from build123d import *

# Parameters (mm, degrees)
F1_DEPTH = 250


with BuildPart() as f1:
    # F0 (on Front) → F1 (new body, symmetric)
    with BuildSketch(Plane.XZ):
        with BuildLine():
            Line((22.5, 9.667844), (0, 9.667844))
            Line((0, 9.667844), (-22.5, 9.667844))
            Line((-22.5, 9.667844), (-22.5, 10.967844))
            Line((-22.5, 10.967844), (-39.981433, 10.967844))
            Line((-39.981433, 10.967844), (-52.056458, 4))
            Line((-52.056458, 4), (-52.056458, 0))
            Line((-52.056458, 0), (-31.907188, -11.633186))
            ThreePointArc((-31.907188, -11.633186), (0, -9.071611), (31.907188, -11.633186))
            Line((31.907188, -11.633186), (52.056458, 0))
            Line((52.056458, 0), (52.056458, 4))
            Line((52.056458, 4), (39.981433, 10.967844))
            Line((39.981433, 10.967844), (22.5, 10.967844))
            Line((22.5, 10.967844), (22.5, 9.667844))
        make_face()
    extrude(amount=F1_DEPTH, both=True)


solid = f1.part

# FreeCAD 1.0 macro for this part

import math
import FreeCAD as App
import Part
import Sketcher

V = App.Vector
Q = App.Units.Quantity

doc = App.newDocument("Part")
body = doc.addObject("PartDesign::Body", "Body")

sketch1 = body.newObject("Sketcher::SketchObject", "Sketch")
sketch1.AttachmentSupport = (doc.getObject("XZ_Plane"), [""])
sketch1.MapMode = "FlatFace"
sketch1.addGeometry([
    Part.LineSegment(V(22.5, 9.667844, 0), V(-22.5, 9.667844, 0)),
    Part.LineSegment(V(-22.5, 9.667844, 0), V(-22.5, 10.967844, 0)),
    Part.LineSegment(V(-22.5, 10.967844, 0), V(-39.981433, 10.967844, 0)),
    Part.LineSegment(V(-39.981433, 10.967844, 0), V(-52.056458, 4, 0)),
    Part.LineSegment(V(-52.056458, 4, 0), V(-52.056458, 0, 0)),
    Part.LineSegment(V(-52.056458, 0, 0), V(-31.907188, -11.633186, 0)),
    Part.ArcOfCircle(Part.Circle(V(0, -209.071672, 0), V(0, 0, 1), 200.000061), math.radians(80.820041), math.radians(99.179959)),
    Part.LineSegment(V(31.907188, -11.633186, 0), V(52.056458, 0, 0)),
    Part.LineSegment(V(52.056458, 0, 0), V(52.056458, 4, 0)),
    Part.LineSegment(V(52.056458, 4, 0), V(39.981433, 10.967844, 0)),
    Part.LineSegment(V(39.981433, 10.967844, 0), V(22.5, 10.967844, 0)),
    Part.LineSegment(V(22.5, 10.967844, 0), V(22.5, 9.667844, 0)),
], False)
sketch1.addConstraint([
    Sketcher.Constraint("Coincident", 0, 2, 1, 1),
    Sketcher.Constraint("Coincident", 1, 2, 2, 1),
    Sketcher.Constraint("Coincident", 2, 2, 3, 1),
    Sketcher.Constraint("Coincident", 3, 2, 4, 1),
    Sketcher.Constraint("Coincident", 4, 2, 5, 1),
    Sketcher.Constraint("Coincident", 5, 2, 6, 2),
    Sketcher.Constraint("Coincident", 6, 1, 7, 1),
    Sketcher.Constraint("Coincident", 7, 2, 8, 1),
    Sketcher.Constraint("Coincident", 8, 2, 9, 1),
    Sketcher.Constraint("Coincident", 9, 2, 10, 1),
    Sketcher.Constraint("Coincident", 10, 2, 11, 1),
    Sketcher.Constraint("Coincident", 11, 2, 0, 1),
    Sketcher.Constraint("Horizontal", 0),
    Sketcher.Constraint("Vertical", 1),
    Sketcher.Constraint("Horizontal", 2),
    Sketcher.Constraint("Vertical", 4),
    Sketcher.Constraint("Vertical", 8),
    Sketcher.Constraint("Horizontal", 10),
    Sketcher.Constraint("Vertical", 11),
    Sketcher.Constraint("Symmetric", 4, 2, 7, 2, -1, 1),
    Sketcher.Constraint("Symmetric", 5, 2, 6, 1, -2),
    Sketcher.Constraint("Symmetric", 2, 2, 9, 2, -2),
    Sketcher.Constraint("PointOnObject", 4, 2, -1),
    Sketcher.Constraint("Horizontal", 3, 2, 8, 2),
    Sketcher.Constraint("Equal", 2, 10),
    Sketcher.Constraint("DistanceX", 0, 2, 0, 1, Q("45 mm")),
    Sketcher.Constraint("DistanceY", 4, 2, 4, 1, Q("4 mm")),
    Sketcher.Constraint("Angle", 5, Q("-29.999999 deg")),
    Sketcher.Constraint("DistanceY", 1, 1, 1, 2, Q("1.3 mm")),
    Sketcher.Constraint("Radius", 6, Q("200.000061 mm")),
    Sketcher.Constraint("Distance", 3, Q("13.941201 mm")),
    Sketcher.Constraint("DistanceX", 2, 2, 2, 1, Q("17.481433 mm")),
    Sketcher.Constraint("DistanceX", 5, 2, -1, 1, Q("31.907188 mm")),
    Sketcher.Constraint("DistanceX", 4, 2, 5, 2, Q("20.14927 mm")),
])
pad1 = body.newObject("PartDesign::Pad", "Pad")
pad1.Profile = sketch1
pad1.Length = 500
pad1.Midplane = True

doc.recompute()
